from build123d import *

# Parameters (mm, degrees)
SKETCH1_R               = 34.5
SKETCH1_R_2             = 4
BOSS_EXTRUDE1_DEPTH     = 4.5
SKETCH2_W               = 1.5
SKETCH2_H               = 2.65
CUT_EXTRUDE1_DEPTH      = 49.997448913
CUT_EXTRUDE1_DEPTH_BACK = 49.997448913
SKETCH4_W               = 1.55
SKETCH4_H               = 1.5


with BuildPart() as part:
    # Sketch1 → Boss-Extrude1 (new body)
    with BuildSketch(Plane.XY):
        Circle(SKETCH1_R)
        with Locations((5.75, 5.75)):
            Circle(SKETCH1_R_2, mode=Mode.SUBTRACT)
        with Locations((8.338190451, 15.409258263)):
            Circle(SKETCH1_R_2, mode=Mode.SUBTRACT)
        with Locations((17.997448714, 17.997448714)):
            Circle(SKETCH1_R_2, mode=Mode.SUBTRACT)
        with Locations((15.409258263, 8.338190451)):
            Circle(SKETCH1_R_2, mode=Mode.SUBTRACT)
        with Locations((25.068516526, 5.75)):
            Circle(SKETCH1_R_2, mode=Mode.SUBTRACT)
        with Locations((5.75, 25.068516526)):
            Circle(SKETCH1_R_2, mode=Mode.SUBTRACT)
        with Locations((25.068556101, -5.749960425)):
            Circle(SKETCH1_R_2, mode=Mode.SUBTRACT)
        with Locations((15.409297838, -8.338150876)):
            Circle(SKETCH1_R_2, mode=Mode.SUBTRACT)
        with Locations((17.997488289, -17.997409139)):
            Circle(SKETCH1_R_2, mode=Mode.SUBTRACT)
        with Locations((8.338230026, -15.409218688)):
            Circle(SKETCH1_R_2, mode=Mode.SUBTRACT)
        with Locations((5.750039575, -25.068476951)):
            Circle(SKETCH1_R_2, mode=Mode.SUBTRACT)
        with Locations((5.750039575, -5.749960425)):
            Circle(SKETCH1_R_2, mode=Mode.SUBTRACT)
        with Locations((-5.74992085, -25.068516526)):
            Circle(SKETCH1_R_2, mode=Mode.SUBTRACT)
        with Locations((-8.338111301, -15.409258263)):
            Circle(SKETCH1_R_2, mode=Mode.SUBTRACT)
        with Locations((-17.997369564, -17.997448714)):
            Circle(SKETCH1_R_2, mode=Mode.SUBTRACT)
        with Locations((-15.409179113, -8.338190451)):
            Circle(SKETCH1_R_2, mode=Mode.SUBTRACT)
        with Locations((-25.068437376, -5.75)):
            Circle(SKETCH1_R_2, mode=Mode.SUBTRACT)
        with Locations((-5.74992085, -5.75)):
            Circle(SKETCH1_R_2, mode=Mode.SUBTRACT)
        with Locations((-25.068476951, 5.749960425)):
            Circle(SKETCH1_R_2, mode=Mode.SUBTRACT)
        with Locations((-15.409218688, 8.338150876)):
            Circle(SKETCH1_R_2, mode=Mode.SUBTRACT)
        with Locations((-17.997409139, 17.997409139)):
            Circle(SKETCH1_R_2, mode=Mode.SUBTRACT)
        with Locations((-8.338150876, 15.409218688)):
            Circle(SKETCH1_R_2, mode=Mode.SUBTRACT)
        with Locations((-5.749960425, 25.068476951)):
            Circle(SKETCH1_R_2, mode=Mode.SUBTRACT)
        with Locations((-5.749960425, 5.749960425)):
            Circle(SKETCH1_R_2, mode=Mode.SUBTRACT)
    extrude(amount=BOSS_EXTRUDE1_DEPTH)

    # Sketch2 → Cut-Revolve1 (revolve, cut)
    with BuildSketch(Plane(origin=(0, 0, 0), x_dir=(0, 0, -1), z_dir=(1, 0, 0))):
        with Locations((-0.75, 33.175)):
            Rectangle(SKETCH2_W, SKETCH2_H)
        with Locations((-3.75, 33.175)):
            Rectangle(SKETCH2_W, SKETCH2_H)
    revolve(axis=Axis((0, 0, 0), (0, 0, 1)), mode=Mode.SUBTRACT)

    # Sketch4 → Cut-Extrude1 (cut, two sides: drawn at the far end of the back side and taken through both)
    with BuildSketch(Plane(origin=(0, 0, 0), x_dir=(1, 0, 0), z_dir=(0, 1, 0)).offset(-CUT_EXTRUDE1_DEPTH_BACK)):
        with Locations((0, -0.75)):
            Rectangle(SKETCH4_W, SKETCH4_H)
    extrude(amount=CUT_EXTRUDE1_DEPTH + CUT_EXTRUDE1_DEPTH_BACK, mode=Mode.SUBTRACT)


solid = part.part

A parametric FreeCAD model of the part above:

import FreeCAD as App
import Part
import Sketcher

V = App.Vector
Q = App.Units.Quantity

doc = App.newDocument("Part")
body = doc.addObject("PartDesign::Body", "Body")

# Sketch on XY plane
sketch1 = body.newObject("Sketcher::SketchObject", "Sketch")
sketch1.AttachmentSupport = (doc.getObject("XY_Plane"), [""])
sketch1.MapMode = "FlatFace"
sketch1.addGeometry([
    Part.Circle(V(0, 0, 0), V(0, 0, 1), 34.5),  # 0
    Part.Circle(V(-18, -18, 0), V(0, 0, 1), 4),  # 1
    Part.Circle(V(-5.7, -25.1, 0), V(0, 0, 1), 4),  # 2
    Part.Circle(V(-8.3, -15.4, 0), V(0, 0, 1), 4),  # 3
    Part.Circle(V(-15.4, -8.3, 0), V(0, 0, 1), 4),  # 4
    Part.Circle(V(-25.1, -5.8, 0), V(0, 0, 1), 4),  # 5
    Part.Circle(V(-5.7, -5.8, 0), V(0, 0, 1), 4),  # 6
    Part.Circle(V(5.8, -25.1, 0), V(0, 0, 1), 4),  # 7
    Part.Circle(V(8.3, -15.4, 0), V(0, 0, 1), 4),  # 8
    Part.Circle(V(18, -18, 0), V(0, 0, 1), 4),  # 9
    Part.Circle(V(5.8, -5.7, 0), V(0, 0, 1), 4),  # 10
    Part.Circle(V(15.4, -8.3, 0), V(0, 0, 1), 4),  # 11
    Part.Circle(V(25.1, -5.7, 0), V(0, 0, 1), 4),  # 12
    Part.Circle(V(-25.1, 5.7, 0), V(0, 0, 1), 4),  # 13
    Part.Circle(V(-15.4, 8.3, 0), V(0, 0, 1), 4),  # 14
    Part.Circle(V(-5.7, 5.7, 0), V(0, 0, 1), 4),  # 15
    Part.Circle(V(-18, 18, 0), V(0, 0, 1), 4),  # 16
    Part.Circle(V(-8.3, 15.4, 0), V(0, 0, 1), 4),  # 17
    Part.Circle(V(-5.7, 25.1, 0), V(0, 0, 1), 4),  # 18
    Part.Circle(V(5.8, 5.8, 0), V(0, 0, 1), 4),  # 19
    Part.Circle(V(25.1, 5.8, 0), V(0, 0, 1), 4),  # 20
    Part.Circle(V(15.4, 8.3, 0), V(0, 0, 1), 4),  # 21
    Part.Circle(V(8.3, 15.4, 0), V(0, 0, 1), 4),  # 22
    Part.Circle(V(5.8, 25.1, 0), V(0, 0, 1), 4),  # 23
    Part.Circle(V(18, 18, 0), V(0, 0, 1), 4),  # 24
], False)
sketch1.addConstraint([
    Sketcher.Constraint("Coincident", 0, 3, -1, 1),
    Sketcher.Constraint("Equal", 1, 2),
    Sketcher.Constraint("Equal", 2, 3),
    Sketcher.Constraint("Equal", 3, 4),
    Sketcher.Constraint("Equal", 4, 5),
    Sketcher.Constraint("Equal", 5, 6),
    Sketcher.Constraint("Equal", 6, 7),
    Sketcher.Constraint("Equal", 7, 8),
    Sketcher.Constraint("Equal", 8, 9),
    Sketcher.Constraint("Equal", 9, 10),
    Sketcher.Constraint("Equal", 10, 11),
    Sketcher.Constraint("Equal", 11, 12),
    Sketcher.Constraint("Equal", 12, 13),
    Sketcher.Constraint("Equal", 13, 14),
    Sketcher.Constraint("Equal", 14, 15),
    Sketcher.Constraint("Equal", 15, 16),
    Sketcher.Constraint("Equal", 16, 17),
    Sketcher.Constraint("Equal", 17, 18),
    Sketcher.Constraint("Equal", 18, 19),
    Sketcher.Constraint("Equal", 19, 20),
    Sketcher.Constraint("Equal", 20, 21),
    Sketcher.Constraint("Equal", 21, 22),
    Sketcher.Constraint("Equal", 22, 23),
    Sketcher.Constraint("Equal", 23, 24),
    Sketcher.Constraint("Horizontal", 5, 3, 6, 3),
    Sketcher.Constraint("Horizontal", 10, 3, 12, 3),
    Sketcher.Constraint("Horizontal", 13, 3, 15, 3),
    Sketcher.Constraint("Horizontal", 19, 3, 20, 3),
    Sketcher.Constraint("Vertical", 2, 3, 6, 3),
    Sketcher.Constraint("Vertical", 7, 3, 10, 3),
    Sketcher.Constraint("Vertical", 15, 3, 18, 3),
    Sketcher.Constraint("Vertical", 19, 3, 23, 3),
    Sketcher.Constraint("Diameter", 0, Q("69 mm")),
    Sketcher.Constraint("Diameter", 1, Q("8 mm")),
    Sketcher.Constraint("DistanceX", 15, 3, 10, 3, Q("11.5 mm")),
    Sketcher.Constraint("DistanceY", 6, 3, 19, 3, Q("11.5 mm")),
    Sketcher.Constraint("DistanceY", 5, 3, -1, 1, Q("5.75 mm")),
    Sketcher.Constraint("DistanceX", -1, 1, 19, 3, Q("5.75 mm")),
    Sketcher.Constraint("DistanceX", 3, 3, 9, 3, Q("26.3356 mm")),
    Sketcher.Constraint("DistanceX", 1, 3, -1, 1, Q("17.99737 mm")),
    Sketcher.Constraint("DistanceY", 1, 3, -1, 1, Q("17.997449 mm")),
    Sketcher.Constraint("DistanceX", 2, 3, -1, 1, Q("5.749921 mm")),
    Sketcher.Constraint("DistanceX", 3, 3, -1, 1, Q("8.338111 mm")),
    Sketcher.Constraint("DistanceY", 3, 3, -1, 1, Q("15.409258 mm")),
    Sketcher.Constraint("DistanceX", 4, 3, -1, 1, Q("15.409179 mm")),
    Sketcher.Constraint("DistanceY", 4, 3, -1, 1, Q("8.33819 mm")),
    Sketcher.Constraint("DistanceX", -1, 1, 7, 3, Q("5.75004 mm")),
    Sketcher.Constraint("DistanceX", -1, 1, 8, 3, Q("8.33823 mm")),
    Sketcher.Constraint("DistanceY", 8, 3, -1, 1, Q("15.409219 mm")),
    Sketcher.Constraint("DistanceY", 9, 3, -1, 1, Q("17.997409 mm")),
    Sketcher.Constraint("DistanceY", 10, 3, -1, 1, Q("5.74996 mm")),
    Sketcher.Constraint("DistanceY", 11, 3, -1, 1, Q("8.338151 mm")),
    Sketcher.Constraint("DistanceY", -1, 1, 13, 3, Q("5.74996 mm")),
    Sketcher.Constraint("DistanceX", 14, 3, -1, 1, Q("15.409219 mm")),
    Sketcher.Constraint("DistanceY", -1, 1, 14, 3, Q("8.338151 mm")),
    Sketcher.Constraint("DistanceX", 16, 3, -1, 1, Q("17.997409 mm")),
    Sketcher.Constraint("DistanceY", -1, 1, 16, 3, Q("17.997409 mm")),
    Sketcher.Constraint("DistanceX", 17, 3, -1, 1, Q("8.338151 mm")),
    Sketcher.Constraint("DistanceY", -1, 1, 17, 3, Q("15.409219 mm")),
    Sketcher.Constraint("DistanceX", -1, 1, 21, 3, Q("15.409258 mm")),
    Sketcher.Constraint("DistanceY", -1, 1, 21, 3, Q("8.33819 mm")),
    Sketcher.Constraint("DistanceX", -1, 1, 22, 3, Q("8.33819 mm")),
    Sketcher.Constraint("DistanceY", -1, 1, 22, 3, Q("15.409258 mm")),
    Sketcher.Constraint("DistanceX", -1, 1, 24, 3, Q("17.997449 mm")),
    Sketcher.Constraint("DistanceY", -1, 1, 24, 3, Q("17.997449 mm")),
    Sketcher.Constraint("DistanceY", 2, 3, 3, 3, Q("9.659258 mm")),
    Sketcher.Constraint("DistanceX", 5, 3, 4, 3, Q("9.659258 mm")),
    Sketcher.Constraint("DistanceY", 7, 3, 3, 3, Q("9.659219 mm")),
    Sketcher.Constraint("DistanceX", 11, 3, 9, 3, Q("2.58819 mm")),
    Sketcher.Constraint("DistanceX", 11, 3, 12, 3, Q("9.659258 mm")),
    Sketcher.Constraint("DistanceX", 13, 3, 14, 3, Q("9.659258 mm")),
    Sketcher.Constraint("DistanceY", 17, 3, 18, 3, Q("9.659258 mm")),
    Sketcher.Constraint("DistanceX", 11, 3, 20, 3, Q("9.659219 mm")),
    Sketcher.Constraint("DistanceY", 22, 3, 23, 3, Q("9.659258 mm")),
])
pad1 = body.newObject("PartDesign::Pad", "Pad")
pad1.Profile = sketch1
pad1.Length = 4.5

# Sketch on YZ plane
sketch2 = body.newObject("Sketcher::SketchObject", "Sketch001")
sketch2.AttachmentSupport = (doc.getObject("YZ_Plane"), [""])
sketch2.MapMode = "FlatFace"
sketch2.addGeometry([
    Part.LineSegment(V(34.5, 1.5, 0), V(31.9, 1.5, 0)),  # 0
    Part.LineSegment(V(31.9, 1.5, 0), V(31.9, 0, 0)),  # 1
    Part.LineSegment(V(31.9, 0, 0), V(34.5, 0, 0)),  # 2
    Part.LineSegment(V(34.5, 0, 0), V(34.5, 1.5, 0)),  # 3
    Part.LineSegment(V(34.5, 4.5, 0), V(31.9, 4.5, 0)),  # 4
    Part.LineSegment(V(31.9, 4.5, 0), V(31.9, 3, 0)),  # 5
    Part.LineSegment(V(31.9, 3, 0), V(34.5, 3, 0)),  # 6
    Part.LineSegment(V(34.5, 3, 0), V(34.5, 4.5, 0)),  # 7
], False)
sketch2.addConstraint([
    Sketcher.Constraint("Coincident", 0, 2, 1, 1),
    Sketcher.Constraint("Coincident", 1, 2, 2, 1),
    Sketcher.Constraint("Coincident", 2, 2, 3, 1),
    Sketcher.Constraint("Coincident", 3, 2, 0, 1),
    Sketcher.Constraint("Coincident", 4, 2, 5, 1),
    Sketcher.Constraint("Coincident", 5, 2, 6, 1),
    Sketcher.Constraint("Coincident", 6, 2, 7, 1),
    Sketcher.Constraint("Coincident", 7, 2, 4, 1),
    Sketcher.Constraint("Horizontal", 0),
    Sketcher.Constraint("Vertical", 1),
    Sketcher.Constraint("Horizontal", 2),
    Sketcher.Constraint("Vertical", 3),
    Sketcher.Constraint("Horizontal", 4),
    Sketcher.Constraint("Vertical", 5),
    Sketcher.Constraint("Horizontal", 6),
    Sketcher.Constraint("Vertical", 7),
    Sketcher.Constraint("PointOnObject", 1, 2, -1),
    Sketcher.Constraint("Vertical", 1, 2, 4, 2),
    Sketcher.Constraint("Vertical", 3, 2, 6, 2),
    Sketcher.Constraint("Equal", 3, 5),
    Sketcher.Constraint("DistanceY", 1, 2, 1, 1, Q("1.5 mm")),
    Sketcher.Constraint("DistanceY", -1, 1, 5, 2, Q("3 mm")),
    Sketcher.Constraint("DistanceX", 0, 2, 0, 1, Q("2.65 mm")),
    Sketcher.Constraint("DistanceX", -1, 1, 2, 2, Q("34.5 mm")),
])
groove = body.newObject("PartDesign::Groove", "Groove")
groove.Profile = sketch2
groove.ReferenceAxis = (sketch2, ["V_Axis"])
groove.Angle = 360

# Sketch on XZ plane
sketch3 = body.newObject("Sketcher::SketchObject", "Sketch002")
sketch3.AttachmentSupport = (doc.getObject("XZ_Plane"), [""])
sketch3.MapMode = "FlatFace"
sketch3.addGeometry([
    Part.LineSegment(V(-0.8, 0, 0), V(-0.8, 1.5, 0)),
    Part.LineSegment(V(-0.8, 1.5, 0), V(0.8, 1.5, 0)),
    Part.LineSegment(V(0.8, 1.5, 0), V(0.8, 0, 0)),
    Part.LineSegment(V(0.8, 0, 0), V(-0.8, 0, 0)),
], False)
sketch3.addConstraint([
    Sketcher.Constraint("Coincident", 0, 2, 1, 1),
    Sketcher.Constraint("Coincident", 1, 2, 2, 1),
    Sketcher.Constraint("Coincident", 2, 2, 3, 1),
    Sketcher.Constraint("Coincident", 3, 2, 0, 1),
    Sketcher.Constraint("Vertical", 0),
    Sketcher.Constraint("Horizontal", 1),
    Sketcher.Constraint("Vertical", 2),
    Sketcher.Constraint("Horizontal", 3),
    Sketcher.Constraint("Symmetric", 2, 2, 3, 2, -1, 1),
    Sketcher.Constraint("DistanceY", 0, 1, 0, 2, Q("1.5 mm")),
    Sketcher.Constraint("DistanceX", 1, 1, 1, 2, Q("1.55 mm")),
])
pocket1 = body.newObject("PartDesign::Pocket", "Pocket")
pocket1.Profile = sketch3
pocket1.Type = "ThroughAll"
pocket1.Midplane = True

doc.recompute()
